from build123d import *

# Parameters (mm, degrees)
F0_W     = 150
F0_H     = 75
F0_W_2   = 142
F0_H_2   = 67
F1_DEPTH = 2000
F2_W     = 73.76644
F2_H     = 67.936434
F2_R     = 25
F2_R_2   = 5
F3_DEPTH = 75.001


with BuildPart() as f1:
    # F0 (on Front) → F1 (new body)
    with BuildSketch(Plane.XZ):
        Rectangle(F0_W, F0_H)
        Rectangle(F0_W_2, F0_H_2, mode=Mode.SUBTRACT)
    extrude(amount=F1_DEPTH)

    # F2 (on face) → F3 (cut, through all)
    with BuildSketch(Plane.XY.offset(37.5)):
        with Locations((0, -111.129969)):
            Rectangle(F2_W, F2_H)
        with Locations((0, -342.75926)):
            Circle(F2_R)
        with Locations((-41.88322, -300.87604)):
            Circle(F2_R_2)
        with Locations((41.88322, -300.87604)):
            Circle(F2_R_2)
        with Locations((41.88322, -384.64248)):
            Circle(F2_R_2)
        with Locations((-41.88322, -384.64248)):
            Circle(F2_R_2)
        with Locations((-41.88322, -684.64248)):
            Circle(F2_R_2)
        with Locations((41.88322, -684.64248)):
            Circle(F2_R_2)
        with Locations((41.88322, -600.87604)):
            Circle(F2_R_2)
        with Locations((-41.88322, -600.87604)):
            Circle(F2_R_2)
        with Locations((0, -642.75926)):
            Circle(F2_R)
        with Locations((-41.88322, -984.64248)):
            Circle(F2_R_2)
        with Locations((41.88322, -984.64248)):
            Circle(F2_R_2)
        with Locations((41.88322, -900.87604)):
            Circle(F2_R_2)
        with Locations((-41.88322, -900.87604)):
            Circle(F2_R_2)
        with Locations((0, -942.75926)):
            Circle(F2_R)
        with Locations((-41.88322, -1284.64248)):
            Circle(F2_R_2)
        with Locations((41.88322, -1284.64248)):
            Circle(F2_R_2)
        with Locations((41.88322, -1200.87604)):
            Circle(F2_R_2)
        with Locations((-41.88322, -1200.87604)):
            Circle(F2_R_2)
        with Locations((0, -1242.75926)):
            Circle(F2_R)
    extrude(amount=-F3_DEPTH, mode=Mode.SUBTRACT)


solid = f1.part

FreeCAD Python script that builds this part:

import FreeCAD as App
import Part
import Sketcher

V = App.Vector


def add_polygon(sketch, points):
    """Adds a closed chain of lines whose ends are joined by coincident constraints."""
    first, n = sketch.GeometryCount, len(points)
    for a, b in zip(points, points[1:] + points[:1]):
        sketch.addGeometry(Part.LineSegment(App.Vector(*a, 0), App.Vector(*b, 0)), False)
    for i in range(n):
        sketch.addConstraint(Sketcher.Constraint("Coincident", first + i, 2, first + (i + 1) % n, 1))

doc = App.newDocument("Part")
body = doc.addObject("PartDesign::Body", "Body")

# Sketch on XZ plane
sketch1 = doc.addObject("Sketcher::SketchObject", "Sketch")
body.addObject(sketch1)
sketch1.AttachmentSupport = (doc.XZ_Plane, [""])
sketch1.MapMode = "FlatFace"
add_polygon(sketch1, [(-75, 38), (-75, -38), (75, -38), (75, 38)])  # lines 0-3
add_polygon(sketch1, [(71, -34), (-71, -34), (-71, 34), (71, 34)])  # lines 4-7
sketch1.addConstraint(Sketcher.Constraint("Vertical", 0))
sketch1.addConstraint(Sketcher.Constraint("Horizontal", 1))
sketch1.addConstraint(Sketcher.Constraint("Vertical", 2))
sketch1.addConstraint(Sketcher.Constraint("Horizontal", 3))
sketch1.addConstraint(Sketcher.Constraint("Horizontal", 4))
sketch1.addConstraint(Sketcher.Constraint("Vertical", 5))
sketch1.addConstraint(Sketcher.Constraint("Horizontal", 6))
sketch1.addConstraint(Sketcher.Constraint("Vertical", 7))
sketch1.addConstraint(Sketcher.Constraint("Symmetric", 0, 2, 2, 2, -1, 1))
sketch1.addConstraint(Sketcher.Constraint("Symmetric", 4, 2, 6, 2, -1, 1))
sketch1.addConstraint(Sketcher.Constraint("DistanceX", 1, 1, 1, 2, 150.0))
sketch1.addConstraint(Sketcher.Constraint("DistanceX", 4, 2, 4, 1, 142.0))
sketch1.addConstraint(Sketcher.Constraint("DistanceY", 0, 2, 0, 1, 75.0))
sketch1.addConstraint(Sketcher.Constraint("DistanceY", 5, 1, 5, 2, 67.0))
pad1 = doc.addObject("PartDesign::Pad", "Pad")
body.addObject(pad1)
pad1.Profile = sketch1
pad1.Length = 2000

# Sketch on XY plane
sketch2 = doc.addObject("Sketcher::SketchObject", "Sketch001")
body.addObject(sketch2)
sketch2.AttachmentSupport = (doc.XY_Plane, [""])
sketch2.MapMode = "FlatFace"
sketch2.AttachmentOffset = App.Placement(V(0, 0, 37.5), App.Rotation())
add_polygon(sketch2, [(-37, -77), (-37, -145), (37, -145), (37, -77)])  # lines 0-3
sketch2.addGeometry(Part.Circle(V(0, -343, 0), V(0, 0, 1), 25), False)  # 4
sketch2.addGeometry(Part.Circle(V(-42, -301, 0), V(0, 0, 1), 5), False)  # 5
sketch2.addGeometry(Part.Circle(V(42, -301, 0), V(0, 0, 1), 5), False)  # 6
sketch2.addGeometry(Part.Circle(V(42, -385, 0), V(0, 0, 1), 5), False)  # 7
sketch2.addGeometry(Part.Circle(V(-42, -385, 0), V(0, 0, 1), 5), False)  # 8
sketch2.addGeometry(Part.Circle(V(-42, -685, 0), V(0, 0, 1), 5), False)  # 9
sketch2.addGeometry(Part.Circle(V(42, -685, 0), V(0, 0, 1), 5), False)  # 10
sketch2.addGeometry(Part.Circle(V(42, -601, 0), V(0, 0, 1), 5), False)  # 11
sketch2.addGeometry(Part.Circle(V(-42, -601, 0), V(0, 0, 1), 5), False)  # 12
sketch2.addGeometry(Part.Circle(V(0, -643, 0), V(0, 0, 1), 25), False)  # 13
sketch2.addGeometry(Part.Circle(V(-42, -985, 0), V(0, 0, 1), 5), False)  # 14
sketch2.addGeometry(Part.Circle(V(42, -985, 0), V(0, 0, 1), 5), False)  # 15
sketch2.addGeometry(Part.Circle(V(42, -901, 0), V(0, 0, 1), 5), False)  # 16
sketch2.addGeometry(Part.Circle(V(-42, -901, 0), V(0, 0, 1), 5), False)  # 17
sketch2.addGeometry(Part.Circle(V(0, -943, 0), V(0, 0, 1), 25), False)  # 18
sketch2.addGeometry(Part.Circle(V(-42, -1285, 0), V(0, 0, 1), 5), False)  # 19
sketch2.addGeometry(Part.Circle(V(42, -1285, 0), V(0, 0, 1), 5), False)  # 20
sketch2.addGeometry(Part.Circle(V(42, -1201, 0), V(0, 0, 1), 5), False)  # 21
sketch2.addGeometry(Part.Circle(V(-42, -1201, 0), V(0, 0, 1), 5), False)  # 22
sketch2.addGeometry(Part.Circle(V(0, -1243, 0), V(0, 0, 1), 25), False)  # 23
sketch2.addConstraint(Sketcher.Constraint("Vertical", 0))
sketch2.addConstraint(Sketcher.Constraint("Horizontal", 1))
sketch2.addConstraint(Sketcher.Constraint("Vertical", 2))
sketch2.addConstraint(Sketcher.Constraint("Horizontal", 3))
sketch2.addConstraint(Sketcher.Constraint("Equal", 5, 6))
sketch2.addConstraint(Sketcher.Constraint("Equal", 6, 7))
sketch2.addConstraint(Sketcher.Constraint("Equal", 7, 8))
sketch2.addConstraint(Sketcher.Constraint("Equal", 8, 9))
sketch2.addConstraint(Sketcher.Constraint("Equal", 9, 10))
sketch2.addConstraint(Sketcher.Constraint("Equal", 10, 11))
sketch2.addConstraint(Sketcher.Constraint("Equal", 11, 12))
sketch2.addConstraint(Sketcher.Constraint("Equal", 4, 13))
sketch2.addConstraint(Sketcher.Constraint("Equal", 12, 14))
sketch2.addConstraint(Sketcher.Constraint("Equal", 14, 15))
sketch2.addConstraint(Sketcher.Constraint("Equal", 15, 16))
sketch2.addConstraint(Sketcher.Constraint("Equal", 16, 17))
sketch2.addConstraint(Sketcher.Constraint("Equal", 13, 18))
sketch2.addConstraint(Sketcher.Constraint("Equal", 17, 19))
sketch2.addConstraint(Sketcher.Constraint("Equal", 19, 20))
sketch2.addConstraint(Sketcher.Constraint("Equal", 20, 21))
sketch2.addConstraint(Sketcher.Constraint("Equal", 21, 22))
sketch2.addConstraint(Sketcher.Constraint("Equal", 18, 23))
sketch2.addConstraint(Sketcher.Constraint("Symmetric", 5, 3, 6, 3, -2))
sketch2.addConstraint(Sketcher.Constraint("Symmetric", 7, 3, 8, 3, -2))
sketch2.addConstraint(Sketcher.Constraint("Symmetric", 9, 3, 10, 3, -2))
sketch2.addConstraint(Sketcher.Constraint("Symmetric", 11, 3, 12, 3, -2))
sketch2.addConstraint(Sketcher.Constraint("Symmetric", 14, 3, 15, 3, -2))
sketch2.addConstraint(Sketcher.Constraint("Symmetric", 16, 3, 17, 3, -2))
sketch2.addConstraint(Sketcher.Constraint("Symmetric", 19, 3, 20, 3, -2))
sketch2.addConstraint(Sketcher.Constraint("Symmetric", 21, 3, 22, 3, -2))
sketch2.addConstraint(Sketcher.Constraint("PointOnObject", 4, 3, -2))
sketch2.addConstraint(Sketcher.Constraint("PointOnObject", 13, 3, -2))
sketch2.addConstraint(Sketcher.Constraint("PointOnObject", 18, 3, -2))
sketch2.addConstraint(Sketcher.Constraint("PointOnObject", 23, 3, -2))
sketch2.addConstraint(Sketcher.Constraint("Vertical", 6, 3, 7, 3))
sketch2.addConstraint(Sketcher.Constraint("Vertical", 8, 3, 9, 3))
sketch2.addConstraint(Sketcher.Constraint("Vertical", 10, 3, 11, 3))
sketch2.addConstraint(Sketcher.Constraint("Vertical", 12, 3, 14, 3))
sketch2.addConstraint(Sketcher.Constraint("Vertical", 15, 3, 16, 3))
sketch2.addConstraint(Sketcher.Constraint("Vertical", 17, 3, 19, 3))
sketch2.addConstraint(Sketcher.Constraint("Vertical", 20, 3, 21, 3))
sketch2.addConstraint(Sketcher.Constraint("Diameter", 4, 50.0))
sketch2.addConstraint(Sketcher.Constraint("Diameter", 5, 10.0))
sketch2.addConstraint(Sketcher.Constraint("DistanceY", 9, 3, 8, 3, 300.0))
sketch2.addConstraint(Sketcher.Constraint("DistanceY", 14, 3, 9, 3, 300.0))
sketch2.addConstraint(Sketcher.Constraint("DistanceY", 19, 3, 14, 3, 300.0))
sketch2.addConstraint(Sketcher.Constraint("DistanceX", 5, 3, 0, 2, 5.0))
sketch2.addConstraint(Sketcher.Constraint("DistanceX", 1, 2, 6, 3, 5.0))
sketch2.addConstraint(Sketcher.Constraint("DistanceX", 1, 1, 1, 2, 73.76644))
sketch2.addConstraint(Sketcher.Constraint("DistanceY", 0, 2, 0, 1, 67.936434))
sketch2.addConstraint(Sketcher.Constraint("DistanceY", 4, 3, -1, 1, 342.75926))
sketch2.addConstraint(Sketcher.Constraint("DistanceY", 5, 3, -1, 1, 300.87604))
sketch2.addConstraint(Sketcher.Constraint("DistanceY", 7, 3, -1, 1, 384.64248))
sketch2.addConstraint(Sketcher.Constraint("DistanceY", 11, 3, -1, 1, 600.87604))
sketch2.addConstraint(Sketcher.Constraint("DistanceY", 13, 3, -1, 1, 642.75926))
sketch2.addConstraint(Sketcher.Constraint("DistanceY", 16, 3, -1, 1, 900.87604))
sketch2.addConstraint(Sketcher.Constraint("DistanceY", 18, 3, -1, 1, 942.75926))
sketch2.addConstraint(Sketcher.Constraint("DistanceY", 21, 3, -1, 1, 1200.87604))
sketch2.addConstraint(Sketcher.Constraint("DistanceY", 23, 3, -1, 1, 1242.75926))
sketch2.addConstraint(Sketcher.Constraint("DistanceY", 0, 2, -1, 1, 145.098186))
pocket1 = doc.addObject("PartDesign::Pocket", "Pocket")
body.addObject(pocket1)
pocket1.Profile = sketch2
pocket1.Type = "ThroughAll"

doc.recompute()
